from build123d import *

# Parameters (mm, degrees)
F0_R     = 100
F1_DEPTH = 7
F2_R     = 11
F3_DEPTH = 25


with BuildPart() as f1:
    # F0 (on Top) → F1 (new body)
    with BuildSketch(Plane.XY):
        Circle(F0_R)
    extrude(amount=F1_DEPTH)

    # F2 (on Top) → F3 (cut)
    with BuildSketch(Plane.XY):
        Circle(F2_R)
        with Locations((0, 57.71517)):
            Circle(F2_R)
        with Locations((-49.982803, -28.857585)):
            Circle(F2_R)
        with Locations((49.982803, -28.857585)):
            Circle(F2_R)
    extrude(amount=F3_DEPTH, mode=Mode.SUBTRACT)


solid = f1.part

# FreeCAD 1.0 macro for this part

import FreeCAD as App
import Part
import Sketcher
from FreeCAD import Vector
Q = App.Units.Quantity

doc = App.newDocument("Part")
params = doc.addObject("Spreadsheet::Sheet", "Params")
for row, (alias, value) in enumerate([
    ("sketch1_diameter", "200 mm"),
    ("pad1_length", "7 mm"),
    ("sketch2_diameter", "22 mm"),
    ("pocket1_length", "25 mm"),
], start=1):
    params.set(f"A{row}", alias)
    params.set(f"B{row}", "=" + value)
    params.setAlias(f"B{row}", alias)

body = doc.addObject("PartDesign::Body", "Body")

sketch1 = body.newObject("Sketcher::SketchObject", "Sketch")
sketch1.AttachmentSupport = (doc.getObject("XY_Plane"), [""])
sketch1.MapMode = "FlatFace"
sketch1.addGeometry(Part.Circle(Vector(0, 0, 0), Vector(0, 0, 1), 100), False)
sketch1.addConstraint(Sketcher.Constraint("Coincident", 0, 3, -1, 1))
sketch1.addConstraint(Sketcher.Constraint("Diameter", 0, Q("200 mm")))
sketch1.setExpression("Constraints[1]", "Params.sketch1_diameter")
pad1 = body.newObject("PartDesign::Pad", "Pad")
pad1.Profile = sketch1
pad1.setExpression("Length", "Params.pad1_length")

sketch2 = body.newObject("Sketcher::SketchObject", "Sketch001")
sketch2.AttachmentSupport = (doc.getObject("XY_Plane"), [""])
sketch2.MapMode = "FlatFace"
sketch2.addGeometry(Part.Circle(Vector(0, 0, 0), Vector(0, 0, 1), 11), False)
sketch2.addGeometry(Part.Circle(Vector(0, 58, 0), Vector(0, 0, 1), 11), False)
sketch2.addGeometry(Part.Circle(Vector(-50, -29, 0), Vector(0, 0, 1), 11), False)
sketch2.addGeometry(Part.Circle(Vector(50, -29, 0), Vector(0, 0, 1), 11), False)
sketch2.addConstraint(Sketcher.Constraint("Coincident", 0, 3, -1, 1))
sketch2.addConstraint(Sketcher.Constraint("Equal", 0, 1))
sketch2.addConstraint(Sketcher.Constraint("Equal", 1, 2))
sketch2.addConstraint(Sketcher.Constraint("Equal", 2, 3))
sketch2.addConstraint(Sketcher.Constraint("Symmetric", 2, 3, 3, 3, -2))
sketch2.addConstraint(Sketcher.Constraint("PointOnObject", 1, 3, -2))
sketch2.addConstraint(Sketcher.Constraint("Diameter", 0, Q("22 mm")))
sketch2.addConstraint(Sketcher.Constraint("DistanceY", -1, 1, 1, 3, Q("57.71517 mm")))
sketch2.addConstraint(Sketcher.Constraint("DistanceX", 2, 3, -1, 1, Q("49.982803 mm")))
sketch2.addConstraint(Sketcher.Constraint("DistanceY", 2, 3, -1, 1, Q("28.857585 mm")))
sketch2.setExpression("Constraints[6]", "Params.sketch2_diameter")
pocket1 = body.newObject("PartDesign::Pocket", "Pocket")
pocket1.Profile = sketch2
pocket1.setExpression("Length", "Params.pocket1_length")
pocket1.Reversed = True

doc.recompute()
